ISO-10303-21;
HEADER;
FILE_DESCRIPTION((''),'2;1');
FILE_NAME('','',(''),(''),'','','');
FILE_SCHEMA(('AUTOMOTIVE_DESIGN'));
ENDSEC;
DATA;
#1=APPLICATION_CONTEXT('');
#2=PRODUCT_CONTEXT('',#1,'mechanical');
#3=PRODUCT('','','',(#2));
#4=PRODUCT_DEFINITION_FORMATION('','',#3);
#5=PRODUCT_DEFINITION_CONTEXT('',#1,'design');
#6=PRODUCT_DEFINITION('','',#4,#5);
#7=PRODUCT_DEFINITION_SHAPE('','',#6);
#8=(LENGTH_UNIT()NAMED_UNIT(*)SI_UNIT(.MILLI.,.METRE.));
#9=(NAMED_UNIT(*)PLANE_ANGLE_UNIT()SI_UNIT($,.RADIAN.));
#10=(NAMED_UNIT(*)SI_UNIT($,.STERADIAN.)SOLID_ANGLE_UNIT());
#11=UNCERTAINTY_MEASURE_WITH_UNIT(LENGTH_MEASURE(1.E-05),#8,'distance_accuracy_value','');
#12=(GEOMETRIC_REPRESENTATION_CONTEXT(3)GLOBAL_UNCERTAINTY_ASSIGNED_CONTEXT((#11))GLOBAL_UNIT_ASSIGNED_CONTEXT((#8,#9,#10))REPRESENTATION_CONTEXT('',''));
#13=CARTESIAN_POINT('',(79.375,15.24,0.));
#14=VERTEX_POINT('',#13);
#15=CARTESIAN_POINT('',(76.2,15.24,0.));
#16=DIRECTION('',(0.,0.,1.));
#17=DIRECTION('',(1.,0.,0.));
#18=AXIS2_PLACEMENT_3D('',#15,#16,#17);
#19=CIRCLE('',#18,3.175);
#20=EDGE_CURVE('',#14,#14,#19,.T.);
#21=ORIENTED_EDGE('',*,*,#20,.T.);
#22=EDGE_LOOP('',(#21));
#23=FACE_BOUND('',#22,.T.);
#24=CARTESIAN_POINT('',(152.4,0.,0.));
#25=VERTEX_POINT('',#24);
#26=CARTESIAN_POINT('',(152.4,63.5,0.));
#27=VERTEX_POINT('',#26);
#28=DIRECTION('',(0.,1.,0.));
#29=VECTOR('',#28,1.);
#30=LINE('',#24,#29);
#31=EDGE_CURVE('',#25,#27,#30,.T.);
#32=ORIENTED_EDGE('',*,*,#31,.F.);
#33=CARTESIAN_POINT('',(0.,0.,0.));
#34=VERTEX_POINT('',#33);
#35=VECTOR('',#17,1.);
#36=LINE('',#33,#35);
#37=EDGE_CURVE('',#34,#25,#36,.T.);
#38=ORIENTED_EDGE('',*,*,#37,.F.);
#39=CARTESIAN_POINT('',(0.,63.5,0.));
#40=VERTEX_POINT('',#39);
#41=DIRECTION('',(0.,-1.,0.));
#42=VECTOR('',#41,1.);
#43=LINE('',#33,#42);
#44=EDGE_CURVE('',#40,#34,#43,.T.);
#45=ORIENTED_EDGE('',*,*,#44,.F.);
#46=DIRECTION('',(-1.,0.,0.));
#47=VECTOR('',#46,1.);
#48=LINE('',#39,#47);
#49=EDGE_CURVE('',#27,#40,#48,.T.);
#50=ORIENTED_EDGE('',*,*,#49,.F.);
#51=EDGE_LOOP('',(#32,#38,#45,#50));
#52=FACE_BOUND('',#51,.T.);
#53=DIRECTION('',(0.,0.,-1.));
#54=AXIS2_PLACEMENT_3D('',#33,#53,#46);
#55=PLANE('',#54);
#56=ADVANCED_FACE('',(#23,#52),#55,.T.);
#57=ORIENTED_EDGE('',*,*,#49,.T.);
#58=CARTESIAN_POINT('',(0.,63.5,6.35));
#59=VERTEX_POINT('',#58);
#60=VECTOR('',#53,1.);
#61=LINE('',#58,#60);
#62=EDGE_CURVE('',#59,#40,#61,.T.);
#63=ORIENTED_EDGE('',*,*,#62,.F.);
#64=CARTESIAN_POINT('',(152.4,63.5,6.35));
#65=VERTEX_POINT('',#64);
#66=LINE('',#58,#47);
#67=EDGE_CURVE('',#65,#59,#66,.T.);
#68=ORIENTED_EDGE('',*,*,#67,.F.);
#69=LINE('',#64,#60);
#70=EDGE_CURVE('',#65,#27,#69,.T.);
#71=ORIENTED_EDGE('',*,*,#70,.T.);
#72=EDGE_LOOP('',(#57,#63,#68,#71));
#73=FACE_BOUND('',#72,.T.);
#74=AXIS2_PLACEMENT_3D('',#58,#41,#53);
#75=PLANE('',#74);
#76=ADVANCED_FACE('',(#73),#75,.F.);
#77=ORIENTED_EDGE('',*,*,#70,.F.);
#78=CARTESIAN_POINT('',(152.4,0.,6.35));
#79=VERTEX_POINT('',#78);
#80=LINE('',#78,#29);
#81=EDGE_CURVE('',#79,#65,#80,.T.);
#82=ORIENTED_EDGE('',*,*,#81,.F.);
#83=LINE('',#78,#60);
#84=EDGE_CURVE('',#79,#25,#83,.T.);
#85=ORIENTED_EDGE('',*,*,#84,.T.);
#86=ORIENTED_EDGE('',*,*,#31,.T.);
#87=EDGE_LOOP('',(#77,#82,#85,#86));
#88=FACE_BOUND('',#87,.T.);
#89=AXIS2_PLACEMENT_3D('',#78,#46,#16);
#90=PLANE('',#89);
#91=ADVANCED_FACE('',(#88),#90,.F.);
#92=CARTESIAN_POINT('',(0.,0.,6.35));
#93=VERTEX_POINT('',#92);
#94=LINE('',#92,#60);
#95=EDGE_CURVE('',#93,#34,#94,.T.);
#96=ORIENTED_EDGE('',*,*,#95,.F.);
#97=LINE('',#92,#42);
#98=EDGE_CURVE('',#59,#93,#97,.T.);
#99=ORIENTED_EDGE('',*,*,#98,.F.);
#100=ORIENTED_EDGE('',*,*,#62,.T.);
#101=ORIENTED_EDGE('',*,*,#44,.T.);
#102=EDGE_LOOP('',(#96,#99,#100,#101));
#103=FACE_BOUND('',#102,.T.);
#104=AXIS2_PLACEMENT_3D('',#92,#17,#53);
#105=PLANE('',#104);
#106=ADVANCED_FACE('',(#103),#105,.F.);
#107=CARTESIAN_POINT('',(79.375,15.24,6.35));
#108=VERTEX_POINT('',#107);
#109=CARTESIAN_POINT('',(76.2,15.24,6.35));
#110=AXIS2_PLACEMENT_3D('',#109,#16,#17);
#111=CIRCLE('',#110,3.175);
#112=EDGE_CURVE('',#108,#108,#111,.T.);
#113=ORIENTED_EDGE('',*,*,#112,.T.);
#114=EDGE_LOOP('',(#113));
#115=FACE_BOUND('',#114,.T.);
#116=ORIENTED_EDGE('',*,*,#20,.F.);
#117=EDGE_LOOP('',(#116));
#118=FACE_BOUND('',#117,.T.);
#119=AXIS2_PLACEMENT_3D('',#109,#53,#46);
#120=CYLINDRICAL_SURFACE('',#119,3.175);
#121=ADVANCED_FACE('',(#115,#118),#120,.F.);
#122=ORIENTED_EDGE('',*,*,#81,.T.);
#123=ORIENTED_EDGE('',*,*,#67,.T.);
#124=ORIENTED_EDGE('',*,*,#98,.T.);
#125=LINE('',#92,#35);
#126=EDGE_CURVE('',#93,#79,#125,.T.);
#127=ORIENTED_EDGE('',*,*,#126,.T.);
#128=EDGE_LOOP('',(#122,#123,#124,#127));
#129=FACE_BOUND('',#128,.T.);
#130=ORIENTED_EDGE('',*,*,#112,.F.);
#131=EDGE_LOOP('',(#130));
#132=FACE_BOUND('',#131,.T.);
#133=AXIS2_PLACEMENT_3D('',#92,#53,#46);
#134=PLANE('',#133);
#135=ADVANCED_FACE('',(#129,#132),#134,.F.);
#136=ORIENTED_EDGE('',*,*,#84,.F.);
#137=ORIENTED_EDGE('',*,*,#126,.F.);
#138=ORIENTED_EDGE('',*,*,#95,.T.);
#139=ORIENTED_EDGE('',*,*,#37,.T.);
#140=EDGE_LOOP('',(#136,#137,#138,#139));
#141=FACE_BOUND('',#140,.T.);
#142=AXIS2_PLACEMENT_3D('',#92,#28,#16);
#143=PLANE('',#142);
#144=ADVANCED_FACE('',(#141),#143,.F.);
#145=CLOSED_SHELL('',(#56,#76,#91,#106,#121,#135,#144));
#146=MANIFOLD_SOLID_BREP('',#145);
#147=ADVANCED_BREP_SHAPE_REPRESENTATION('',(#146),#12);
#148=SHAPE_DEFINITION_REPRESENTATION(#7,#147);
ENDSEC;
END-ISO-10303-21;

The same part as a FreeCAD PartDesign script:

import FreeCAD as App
import Part
import Sketcher

V = App.Vector
Q = App.Units.Quantity

doc = App.newDocument("Part")
params = doc.addObject("Spreadsheet::Sheet", "Params")
for row, (alias, value) in enumerate([
    ("sketch1_diameter", "0.25 in"),
    ("sketch1_width", "6 in"),
    ("sketch1_height", "2.5 in"),
    ("pad1_length", "0.25 in"),
], start=1):
    params.set(f"A{row}", alias)
    params.set(f"B{row}", "=" + value)
    params.setAlias(f"B{row}", alias)

body = doc.addObject("PartDesign::Body", "Body")

# Sketch on XY plane
sketch1 = doc.addObject("Sketcher::SketchObject", "Sketch")
body.addObject(sketch1)
sketch1.AttachmentSupport = (doc.XY_Plane, [""])
sketch1.MapMode = "FlatFace"
sketch1.addGeometry([
    Part.LineSegment(V(0, 63.5, 0), V(0, 0, 0)),  # 0
    Part.LineSegment(V(0, 0, 0), V(152.4, 0, 0)),  # 1
    Part.LineSegment(V(152.4, 0, 0), V(152.4, 63.5, 0)),  # 2
    Part.LineSegment(V(152.4, 63.5, 0), V(0, 63.5, 0)),  # 3
    Part.Circle(V(76.2, 15.2, 0), V(0, 0, 1), 3.2),  # 4
], False)
sketch1.addConstraint([
    Sketcher.Constraint("Coincident", 0, 2, 1, 1),
    Sketcher.Constraint("Coincident", 1, 2, 2, 1),
    Sketcher.Constraint("Coincident", 2, 2, 3, 1),
    Sketcher.Constraint("Coincident", 3, 2, 0, 1),
    Sketcher.Constraint("Vertical", 0),
    Sketcher.Constraint("Horizontal", 1),
    Sketcher.Constraint("Vertical", 2),
    Sketcher.Constraint("Horizontal", 3),
    Sketcher.Constraint("Coincident", 0, 2, -1, 1),
    Sketcher.Constraint("Diameter", 4, Q("0.25 in")),
    Sketcher.Constraint("DistanceX", 1, 1, 1, 2, Q("6 in")),
    Sketcher.Constraint("DistanceY", 0, 2, 0, 1, Q("2.5 in")),
    Sketcher.Constraint("DistanceX", -1, 1, 4, 3, Q("3 in")),
    Sketcher.Constraint("DistanceY", -1, 1, 4, 3, Q("0.6 in")),
])
sketch1.setExpression("Constraints[9]", "Params.sketch1_diameter")
sketch1.setExpression("Constraints[10]", "Params.sketch1_width")
sketch1.setExpression("Constraints[11]", "Params.sketch1_height")
pad1 = doc.addObject("PartDesign::Pad", "Pad")
body.addObject(pad1)
pad1.Profile = sketch1
pad1.setExpression("Length", "Params.pad1_length")

doc.recompute()
